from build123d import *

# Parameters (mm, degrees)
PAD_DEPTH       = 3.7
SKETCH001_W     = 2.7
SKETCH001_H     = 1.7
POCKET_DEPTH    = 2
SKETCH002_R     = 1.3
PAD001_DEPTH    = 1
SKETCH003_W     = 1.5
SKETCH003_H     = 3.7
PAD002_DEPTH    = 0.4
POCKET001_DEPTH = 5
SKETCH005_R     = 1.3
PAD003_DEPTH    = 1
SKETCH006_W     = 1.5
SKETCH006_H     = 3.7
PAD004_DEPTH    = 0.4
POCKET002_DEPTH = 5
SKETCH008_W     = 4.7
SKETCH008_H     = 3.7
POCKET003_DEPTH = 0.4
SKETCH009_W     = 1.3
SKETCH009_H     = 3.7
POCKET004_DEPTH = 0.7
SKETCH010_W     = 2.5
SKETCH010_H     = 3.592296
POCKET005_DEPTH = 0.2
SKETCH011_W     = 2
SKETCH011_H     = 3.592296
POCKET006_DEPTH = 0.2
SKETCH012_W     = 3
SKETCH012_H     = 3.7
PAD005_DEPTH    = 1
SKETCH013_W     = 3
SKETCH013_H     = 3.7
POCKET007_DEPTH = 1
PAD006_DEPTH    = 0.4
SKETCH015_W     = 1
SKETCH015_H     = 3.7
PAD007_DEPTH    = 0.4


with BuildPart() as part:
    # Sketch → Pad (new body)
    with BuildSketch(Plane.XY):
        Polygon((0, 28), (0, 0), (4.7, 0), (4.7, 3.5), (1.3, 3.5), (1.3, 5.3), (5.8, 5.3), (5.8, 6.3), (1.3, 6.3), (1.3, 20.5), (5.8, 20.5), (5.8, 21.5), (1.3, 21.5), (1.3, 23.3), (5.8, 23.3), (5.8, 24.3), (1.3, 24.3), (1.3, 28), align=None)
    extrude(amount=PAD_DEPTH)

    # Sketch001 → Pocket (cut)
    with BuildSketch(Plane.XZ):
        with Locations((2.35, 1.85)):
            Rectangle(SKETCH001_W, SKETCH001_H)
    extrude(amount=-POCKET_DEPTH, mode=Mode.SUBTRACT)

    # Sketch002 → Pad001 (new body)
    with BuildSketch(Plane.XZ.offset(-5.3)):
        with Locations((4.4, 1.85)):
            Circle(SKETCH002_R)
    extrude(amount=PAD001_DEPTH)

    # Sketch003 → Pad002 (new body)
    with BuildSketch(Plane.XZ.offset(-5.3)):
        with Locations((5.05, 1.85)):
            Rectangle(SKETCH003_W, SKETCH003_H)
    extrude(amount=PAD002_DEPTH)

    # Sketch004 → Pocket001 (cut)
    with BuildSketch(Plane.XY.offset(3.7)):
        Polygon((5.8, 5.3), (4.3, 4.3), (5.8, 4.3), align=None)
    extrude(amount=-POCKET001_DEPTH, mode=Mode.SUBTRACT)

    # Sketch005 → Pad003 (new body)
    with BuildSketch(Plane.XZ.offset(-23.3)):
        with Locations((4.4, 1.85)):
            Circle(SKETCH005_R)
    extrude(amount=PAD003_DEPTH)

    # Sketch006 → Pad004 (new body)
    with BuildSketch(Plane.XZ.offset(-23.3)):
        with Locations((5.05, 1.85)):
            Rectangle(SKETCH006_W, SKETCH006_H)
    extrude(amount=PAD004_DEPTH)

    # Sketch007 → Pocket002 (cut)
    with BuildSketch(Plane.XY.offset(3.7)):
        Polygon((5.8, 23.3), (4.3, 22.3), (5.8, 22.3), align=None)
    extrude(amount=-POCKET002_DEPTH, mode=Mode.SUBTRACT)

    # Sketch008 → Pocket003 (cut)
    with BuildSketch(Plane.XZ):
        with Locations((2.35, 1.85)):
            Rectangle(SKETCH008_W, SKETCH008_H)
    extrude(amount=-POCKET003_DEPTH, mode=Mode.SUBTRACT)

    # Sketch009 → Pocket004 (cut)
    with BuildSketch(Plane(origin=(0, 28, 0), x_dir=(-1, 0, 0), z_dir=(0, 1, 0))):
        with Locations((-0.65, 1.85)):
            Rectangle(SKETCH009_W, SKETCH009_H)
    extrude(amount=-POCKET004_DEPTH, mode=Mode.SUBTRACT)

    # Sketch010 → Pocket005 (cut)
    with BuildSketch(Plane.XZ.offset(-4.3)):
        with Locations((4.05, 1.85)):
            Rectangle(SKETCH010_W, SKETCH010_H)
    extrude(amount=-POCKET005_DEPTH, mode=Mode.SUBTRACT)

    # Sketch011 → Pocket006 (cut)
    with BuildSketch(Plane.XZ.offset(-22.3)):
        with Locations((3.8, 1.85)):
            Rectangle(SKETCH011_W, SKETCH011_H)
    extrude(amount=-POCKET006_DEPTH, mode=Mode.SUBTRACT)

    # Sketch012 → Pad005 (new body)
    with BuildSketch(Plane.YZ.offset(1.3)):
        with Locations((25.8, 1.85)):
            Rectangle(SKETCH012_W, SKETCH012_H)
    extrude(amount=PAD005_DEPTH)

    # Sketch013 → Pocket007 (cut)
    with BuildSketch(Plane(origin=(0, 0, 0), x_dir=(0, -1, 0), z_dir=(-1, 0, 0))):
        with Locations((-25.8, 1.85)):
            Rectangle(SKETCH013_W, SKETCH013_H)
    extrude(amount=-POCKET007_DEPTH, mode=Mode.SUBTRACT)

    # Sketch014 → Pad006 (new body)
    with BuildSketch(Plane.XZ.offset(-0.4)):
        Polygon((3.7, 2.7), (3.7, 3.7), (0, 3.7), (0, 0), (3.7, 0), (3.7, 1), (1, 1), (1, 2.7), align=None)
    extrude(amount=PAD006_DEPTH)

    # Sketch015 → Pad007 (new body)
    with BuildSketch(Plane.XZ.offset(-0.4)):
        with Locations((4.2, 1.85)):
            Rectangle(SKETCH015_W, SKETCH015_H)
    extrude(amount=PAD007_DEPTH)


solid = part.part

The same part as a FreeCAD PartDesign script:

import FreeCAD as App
import Part
import Sketcher

V = App.Vector
Q = App.Units.Quantity


def add_polygon(sketch, points):
    """Adds a closed chain of lines whose ends are joined by coincident constraints."""
    first, n = sketch.GeometryCount, len(points)
    for a, b in zip(points, points[1:] + points[:1]):
        sketch.addGeometry(Part.LineSegment(App.Vector(*a, 0), App.Vector(*b, 0)), False)
    for i in range(n):
        sketch.addConstraint(Sketcher.Constraint("Coincident", first + i, 2, first + (i + 1) % n, 1))

doc = App.newDocument("Part")
params = doc.addObject("Spreadsheet::Sheet", "Params")
for row, (alias, value) in enumerate([
    ("sketch1_height", "28 mm"),
    ("sketch1_height2", "1 mm"),
    ("sketch1_width", "4.7 mm"),
    ("sketch1_width2", "3.4 mm"),
    ("sketch1_width3", "4.5 mm"),
    ("pad1_length", "3.7 mm"),
    ("sketch2_width", "2.7 mm"),
    ("sketch2_height", "1.7 mm"),
    ("pocket1_length", "2 mm"),
    ("sketch3_diameter", "2.6 mm"),
    ("pad2_length", "1 mm"),
    ("sketch4_width", "1.5 mm"),
    ("sketch4_height", "3.7 mm"),
    ("pad3_length", "0.4 mm"),
    ("sketch5_height", "1 mm"),
    ("sketch5_width", "1.5 mm"),
    ("pocket2_length", "5 mm"),
    ("sketch6_diameter", "2.6 mm"),
    ("pad4_length", "1 mm"),
    ("sketch7_width", "1.5 mm"),
    ("sketch7_height", "3.7 mm"),
    ("pad5_length", "0.4 mm"),
    ("sketch8_height", "1 mm"),
    ("sketch8_width", "1.5 mm"),
    ("pocket3_length", "5 mm"),
    ("sketch9_width", "4.7 mm"),
    ("sketch9_height", "3.7 mm"),
    ("pocket4_length", "0.4 mm"),
    ("sketch10_width", "1.3 mm"),
    ("sketch10_height", "3.7 mm"),
    ("pocket5_length", "0.7 mm"),
    ("sketch11_width", "2.5 mm"),
    ("pocket6_length", "0.2 mm"),
    ("sketch12_width", "2 mm"),
    ("pocket7_length", "0.2 mm"),
    ("sketch13_width", "3 mm"),
    ("sketch13_height", "3.7 mm"),
    ("pad6_length", "1 mm"),
    ("sketch14_width", "3 mm"),
    ("sketch14_height", "3.7 mm"),
    ("pocket8_length", "1 mm"),
    ("sketch15_height", "1 mm"),
    ("sketch15_width", "3.7 mm"),
    ("sketch15_width2", "2.7 mm"),
    ("pad7_length", "0.4 mm"),
    ("sketch16_width", "1 mm"),
    ("sketch16_height", "3.7 mm"),
    ("pad8_length", "0.4 mm"),
], start=1):
    params.set(f"A{row}", alias)
    params.set(f"B{row}", "=" + value)
    params.setAlias(f"B{row}", alias)

body = doc.addObject("PartDesign::Body", "Body")

# Sketch on XY plane
sketch1 = body.newObject("Sketcher::SketchObject", "Sketch")
sketch1.AttachmentSupport = (doc.getObject("XY_Plane"), [""])
sketch1.MapMode = "FlatFace"
add_polygon(sketch1, [(0, 28), (0, 0), (4.7, 0), (4.7, 3.5), (1.3, 3.5), (1.3, 5.3), (5.8, 5.3), (5.8, 6.3), (1.3, 6.3), (1.3, 20.5), (5.8, 20.5), (5.8, 21.5), (1.3, 21.5), (1.3, 23.3), (5.8, 23.3), (5.8, 24.3), (1.3, 24.3), (1.3, 28)])  # lines 0-17
sketch1.addConstraint([
    Sketcher.Constraint("Vertical", 0),
    Sketcher.Constraint("Horizontal", 1),
    Sketcher.Constraint("Vertical", 2),
    Sketcher.Constraint("Horizontal", 3),
    Sketcher.Constraint("Vertical", 4),
    Sketcher.Constraint("Horizontal", 5),
    Sketcher.Constraint("Vertical", 6),
    Sketcher.Constraint("Horizontal", 7),
    Sketcher.Constraint("Vertical", 8),
    Sketcher.Constraint("Horizontal", 9),
    Sketcher.Constraint("Vertical", 10),
    Sketcher.Constraint("Horizontal", 11),
    Sketcher.Constraint("Vertical", 12),
    Sketcher.Constraint("Horizontal", 13),
    Sketcher.Constraint("Vertical", 14),
    Sketcher.Constraint("Horizontal", 15),
    Sketcher.Constraint("Vertical", 16),
    Sketcher.Constraint("Horizontal", 17),
    Sketcher.Constraint("Coincident", 0, 2, -1, 1),
    Sketcher.Constraint("Vertical", 4, 2, 7, 2),
    Sketcher.Constraint("Vertical", 6, 2, 9, 2),
    Sketcher.Constraint("Vertical", 8, 2, 11, 2),
    Sketcher.Constraint("Vertical", 10, 2, 13, 2),
    Sketcher.Constraint("Vertical", 12, 2, 15, 2),
    Sketcher.Constraint("Equal", 6, 10),
    Sketcher.Constraint("Equal", 4, 12),
    Sketcher.Constraint("Equal", 10, 14),
    Sketcher.Constraint("DistanceY", 0, 2, 0, 1, Q("28 mm")),
    Sketcher.Constraint("DistanceY", 6, 1, 6, 2, Q("1 mm")),
    Sketcher.Constraint("DistanceX", 1, 1, 1, 2, Q("4.7 mm")),
    Sketcher.Constraint("DistanceX", 3, 2, 3, 1, Q("3.4 mm")),
    Sketcher.Constraint("DistanceX", 5, 1, 5, 2, Q("4.5 mm")),
    Sketcher.Constraint("DistanceY", 2, 1, 2, 2, Q("3.5 mm")),
    Sketcher.Constraint("DistanceY", 4, 1, 4, 2, Q("1.8 mm")),
    Sketcher.Constraint("DistanceY", 8, 1, 8, 2, Q("14.2 mm")),
])
sketch1.setExpression("Constraints[45]", "Params.sketch1_height")
sketch1.setExpression("Constraints[46]", "Params.sketch1_height2")
sketch1.setExpression("Constraints[47]", "Params.sketch1_width")
sketch1.setExpression("Constraints[48]", "Params.sketch1_width2")
sketch1.setExpression("Constraints[49]", "Params.sketch1_width3")
pad1 = body.newObject("PartDesign::Pad", "Pad")
pad1.Profile = sketch1
pad1.setExpression("Length", "Params.pad1_length")

# Sketch on XZ plane
sketch2 = body.newObject("Sketcher::SketchObject", "Sketch001")
sketch2.AttachmentSupport = (doc.getObject("XZ_Plane"), [""])
sketch2.MapMode = "FlatFace"
add_polygon(sketch2, [(1, 2.7), (1, 1), (3.7, 1), (3.7, 2.7)])  # lines 0-3
sketch2.addConstraint([
    Sketcher.Constraint("Vertical", 0),
    Sketcher.Constraint("Horizontal", 1),
    Sketcher.Constraint("Vertical", 2),
    Sketcher.Constraint("Horizontal", 3),
    Sketcher.Constraint("DistanceX", 1, 1, 1, 2, Q("2.7 mm")),
    Sketcher.Constraint("DistanceY", 0, 2, 0, 1, Q("1.7 mm")),
    Sketcher.Constraint("DistanceX", -1, 1, 0, 2, Q("1 mm")),
    Sketcher.Constraint("DistanceY", -1, 1, 0, 2, Q("1 mm")),
])
sketch2.setExpression("Constraints[8]", "Params.sketch2_width")
sketch2.setExpression("Constraints[9]", "Params.sketch2_height")
pocket1 = body.newObject("PartDesign::Pocket", "Pocket")
pocket1.Profile = sketch2
pocket1.setExpression("Length", "Params.pocket1_length")

# Sketch on XZ plane
sketch3 = body.newObject("Sketcher::SketchObject", "Sketch002")
sketch3.AttachmentSupport = (doc.getObject("XZ_Plane"), [""])
sketch3.MapMode = "FlatFace"
sketch3.AttachmentOffset = App.Placement(V(0, 0, -5.3), App.Rotation())
sketch3.addGeometry(Part.Circle(V(4.4, 1.9, 0), V(0, 0, 1), 1.3), False)
sketch3.addConstraint([
    Sketcher.Constraint("Diameter", 0, Q("2.6 mm")),
    Sketcher.Constraint("DistanceX", -1, 1, 0, 3, Q("4.4 mm")),
    Sketcher.Constraint("DistanceY", -1, 1, 0, 3, Q("1.85 mm")),
])
sketch3.setExpression("Constraints[0]", "Params.sketch3_diameter")
pad2 = body.newObject("PartDesign::Pad", "Pad001")
pad2.Profile = sketch3
pad2.setExpression("Length", "Params.pad2_length")

# Sketch on XZ plane
sketch4 = body.newObject("Sketcher::SketchObject", "Sketch003")
sketch4.AttachmentSupport = (doc.getObject("XZ_Plane"), [""])
sketch4.MapMode = "FlatFace"
sketch4.AttachmentOffset = App.Placement(V(0, 0, -5.3), App.Rotation())
add_polygon(sketch4, [(4.3, 3.7), (4.3, 0), (5.8, 0), (5.8, 3.7)])  # lines 0-3
sketch4.addConstraint([
    Sketcher.Constraint("Vertical", 0),
    Sketcher.Constraint("Horizontal", 1),
    Sketcher.Constraint("Vertical", 2),
    Sketcher.Constraint("Horizontal", 3),
    Sketcher.Constraint("PointOnObject", 0, 2, -1),
    Sketcher.Constraint("DistanceX", 1, 1, 1, 2, Q("1.5 mm")),
    Sketcher.Constraint("DistanceY", 0, 2, 0, 1, Q("3.7 mm")),
    Sketcher.Constraint("DistanceX", -1, 1, 0, 2, Q("4.3 mm")),
])
sketch4.setExpression("Constraints[9]", "Params.sketch4_width")
sketch4.setExpression("Constraints[10]", "Params.sketch4_height")
pad3 = body.newObject("PartDesign::Pad", "Pad002")
pad3.Profile = sketch4
pad3.setExpression("Length", "Params.pad3_length")

# Sketch on XY plane
sketch5 = body.newObject("Sketcher::SketchObject", "Sketch004")
sketch5.AttachmentSupport = (doc.getObject("XY_Plane"), [""])
sketch5.MapMode = "FlatFace"
sketch5.AttachmentOffset = App.Placement(V(0, 0, 3.7), App.Rotation())
add_polygon(sketch5, [(5.8, 5.3), (4.3, 4.3), (5.8, 4.3)])  # lines 0-2
sketch5.addConstraint([
    Sketcher.Constraint("Horizontal", 1),
    Sketcher.Constraint("Vertical", 2),
    Sketcher.Constraint("DistanceY", 2, 1, 2, 2, Q("1 mm")),
    Sketcher.Constraint("DistanceX", 1, 1, 1, 2, Q("1.5 mm")),
    Sketcher.Constraint("DistanceX", -1, 1, 0, 2, Q("4.3 mm")),
    Sketcher.Constraint("DistanceY", -1, 1, 0, 2, Q("4.3 mm")),
])
sketch5.setExpression("Constraints[5]", "Params.sketch5_height")
sketch5.setExpression("Constraints[6]", "Params.sketch5_width")
pocket2 = body.newObject("PartDesign::Pocket", "Pocket001")
pocket2.Profile = sketch5
pocket2.setExpression("Length", "Params.pocket2_length")

# Sketch on XZ plane
sketch6 = body.newObject("Sketcher::SketchObject", "Sketch005")
sketch6.AttachmentSupport = (doc.getObject("XZ_Plane"), [""])
sketch6.MapMode = "FlatFace"
sketch6.AttachmentOffset = App.Placement(V(0, 0, -23.3), App.Rotation())
sketch6.addGeometry(Part.Circle(V(4.4, 1.9, 0), V(0, 0, 1), 1.3), False)
sketch6.addConstraint([
    Sketcher.Constraint("Diameter", 0, Q("2.6 mm")),
    Sketcher.Constraint("DistanceX", -1, 1, 0, 3, Q("4.4 mm")),
    Sketcher.Constraint("DistanceY", -1, 1, 0, 3, Q("1.85 mm")),
])
sketch6.setExpression("Constraints[0]", "Params.sketch6_diameter")
pad4 = body.newObject("PartDesign::Pad", "Pad003")
pad4.Profile = sketch6
pad4.setExpression("Length", "Params.pad4_length")

# Sketch on XZ plane
sketch7 = body.newObject("Sketcher::SketchObject", "Sketch006")
sketch7.AttachmentSupport = (doc.getObject("XZ_Plane"), [""])
sketch7.MapMode = "FlatFace"
sketch7.AttachmentOffset = App.Placement(V(0, 0, -23.3), App.Rotation())
add_polygon(sketch7, [(4.3, 3.7), (4.3, 0), (5.8, 0), (5.8, 3.7)])  # lines 0-3
sketch7.addConstraint([
    Sketcher.Constraint("Vertical", 0),
    Sketcher.Constraint("Horizontal", 1),
    Sketcher.Constraint("Vertical", 2),
    Sketcher.Constraint("Horizontal", 3),
    Sketcher.Constraint("PointOnObject", 0, 2, -1),
    Sketcher.Constraint("DistanceX", 1, 1, 1, 2, Q("1.5 mm")),
    Sketcher.Constraint("DistanceY", 0, 2, 0, 1, Q("3.7 mm")),
    Sketcher.Constraint("DistanceX", -1, 1, 0, 2, Q("4.3 mm")),
])
sketch7.setExpression("Constraints[9]", "Params.sketch7_width")
sketch7.setExpression("Constraints[10]", "Params.sketch7_height")
pad5 = body.newObject("PartDesign::Pad", "Pad004")
pad5.Profile = sketch7
pad5.setExpression("Length", "Params.pad5_length")

# Sketch on XY plane
sketch8 = body.newObject("Sketcher::SketchObject", "Sketch007")
sketch8.AttachmentSupport = (doc.getObject("XY_Plane"), [""])
sketch8.MapMode = "FlatFace"
sketch8.AttachmentOffset = App.Placement(V(0, 0, 3.7), App.Rotation())
add_polygon(sketch8, [(5.8, 23.3), (4.3, 22.3), (5.8, 22.3)])  # lines 0-2
sketch8.addConstraint([
    Sketcher.Constraint("Horizontal", 1),
    Sketcher.Constraint("Vertical", 2),
    Sketcher.Constraint("DistanceY", 2, 1, 2, 2, Q("1 mm")),
    Sketcher.Constraint("DistanceX", 1, 1, 1, 2, Q("1.5 mm")),
    Sketcher.Constraint("DistanceX", -1, 1, 0, 2, Q("4.3 mm")),
    Sketcher.Constraint("DistanceY", -1, 1, 0, 2, Q("22.3 mm")),
])
sketch8.setExpression("Constraints[5]", "Params.sketch8_height")
sketch8.setExpression("Constraints[6]", "Params.sketch8_width")
pocket3 = body.newObject("PartDesign::Pocket", "Pocket002")
pocket3.Profile = sketch8
pocket3.setExpression("Length", "Params.pocket3_length")

# Sketch on XZ plane
sketch9 = body.newObject("Sketcher::SketchObject", "Sketch008")
sketch9.AttachmentSupport = (doc.getObject("XZ_Plane"), [""])
sketch9.MapMode = "FlatFace"
add_polygon(sketch9, [(0, 3.7), (0, 0), (4.7, 0), (4.7, 3.7)])  # lines 0-3
sketch9.addConstraint([
    Sketcher.Constraint("Vertical", 0),
    Sketcher.Constraint("Horizontal", 1),
    Sketcher.Constraint("Vertical", 2),
    Sketcher.Constraint("Horizontal", 3),
    Sketcher.Constraint("Coincident", 0, 2, -1, 1),
    Sketcher.Constraint("DistanceX", 1, 1, 1, 2, Q("4.7 mm")),
    Sketcher.Constraint("DistanceY", 0, 2, 0, 1, Q("3.7 mm")),
])
sketch9.setExpression("Constraints[9]", "Params.sketch9_width")
sketch9.setExpression("Constraints[10]", "Params.sketch9_height")
pocket4 = body.newObject("PartDesign::Pocket", "Pocket003")
pocket4.Profile = sketch9
pocket4.setExpression("Length", "Params.pocket4_length")

# Sketch on XZ plane
sketch10 = body.newObject("Sketcher::SketchObject", "Sketch009")
sketch10.AttachmentSupport = (doc.getObject("XZ_Plane"), [""])
sketch10.MapMode = "FlatFace"
sketch10.AttachmentOffset = App.Placement(V(0, 0, -28), App.Rotation())
add_polygon(sketch10, [(1.3, 3.7), (1.3, 0), (0, 0), (0, 3.7)])  # lines 0-3
sketch10.addConstraint([
    Sketcher.Constraint("Vertical", 0),
    Sketcher.Constraint("Horizontal", 1),
    Sketcher.Constraint("Vertical", 2),
    Sketcher.Constraint("Horizontal", 3),
    Sketcher.Constraint("Coincident", 1, 2, -1, 1),
    Sketcher.Constraint("DistanceX", 1, 2, 1, 1, Q("1.3 mm")),
    Sketcher.Constraint("DistanceY", 0, 2, 0, 1, Q("3.7 mm")),
])
sketch10.setExpression("Constraints[9]", "Params.sketch10_width")
sketch10.setExpression("Constraints[10]", "Params.sketch10_height")
pocket5 = body.newObject("PartDesign::Pocket", "Pocket004")
pocket5.Profile = sketch10
pocket5.setExpression("Length", "Params.pocket5_length")
pocket5.Reversed = True

# Sketch on XZ plane
sketch11 = body.newObject("Sketcher::SketchObject", "Sketch010")
sketch11.AttachmentSupport = (doc.getObject("XZ_Plane"), [""])
sketch11.MapMode = "FlatFace"
sketch11.AttachmentOffset = App.Placement(V(0, 0, -4.3), App.Rotation())
add_polygon(sketch11, [(2.8, 3.6), (2.8, 0.1), (5.3, 0.1), (5.3, 3.6)])  # lines 0-3
sketch11.addConstraint([
    Sketcher.Constraint("Vertical", 0),
    Sketcher.Constraint("Horizontal", 1),
    Sketcher.Constraint("Vertical", 2),
    Sketcher.Constraint("Horizontal", 3),
    Sketcher.Constraint("DistanceX", 1, 1, 1, 2, Q("2.5 mm")),
    Sketcher.Constraint("DistanceX", -1, 1, 0, 2, Q("2.8 mm")),
    Sketcher.Constraint("DistanceY", 0, 2, 0, 1, Q("3.592296 mm")),
    Sketcher.Constraint("DistanceY", -1, 1, 0, 2, Q("0.053852 mm")),
])
sketch11.setExpression("Constraints[8]", "Params.sketch11_width")
pocket6 = body.newObject("PartDesign::Pocket", "Pocket005")
pocket6.Profile = sketch11
pocket6.setExpression("Length", "Params.pocket6_length")

# Sketch on XZ plane
sketch12 = body.newObject("Sketcher::SketchObject", "Sketch011")
sketch12.AttachmentSupport = (doc.getObject("XZ_Plane"), [""])
sketch12.MapMode = "FlatFace"
sketch12.AttachmentOffset = App.Placement(V(0, 0, -22.3), App.Rotation())
add_polygon(sketch12, [(2.8, 3.6), (2.8, 0.1), (4.8, 0.1), (4.8, 3.6)])  # lines 0-3
sketch12.addConstraint([
    Sketcher.Constraint("Vertical", 0),
    Sketcher.Constraint("Horizontal", 1),
    Sketcher.Constraint("Vertical", 2),
    Sketcher.Constraint("Horizontal", 3),
    Sketcher.Constraint("DistanceX", 1, 1, 1, 2, Q("2 mm")),
    Sketcher.Constraint("DistanceX", -1, 1, 0, 2, Q("2.8 mm")),
    Sketcher.Constraint("DistanceY", 0, 2, 0, 1, Q("3.592296 mm")),
    Sketcher.Constraint("DistanceY", -1, 1, 0, 2, Q("0.053852 mm")),
])
sketch12.setExpression("Constraints[8]", "Params.sketch12_width")
pocket7 = body.newObject("PartDesign::Pocket", "Pocket006")
pocket7.Profile = sketch12
pocket7.setExpression("Length", "Params.pocket7_length")

# Sketch on YZ plane
sketch13 = body.newObject("Sketcher::SketchObject", "Sketch012")
sketch13.AttachmentSupport = (doc.getObject("YZ_Plane"), [""])
sketch13.MapMode = "FlatFace"
sketch13.AttachmentOffset = App.Placement(V(0, 0, 1.3), App.Rotation())
add_polygon(sketch13, [(24.3, 3.7), (24.3, 0), (27.3, 0), (27.3, 3.7)])  # lines 0-3
sketch13.addConstraint([
    Sketcher.Constraint("Vertical", 0),
    Sketcher.Constraint("Horizontal", 1),
    Sketcher.Constraint("Vertical", 2),
    Sketcher.Constraint("Horizontal", 3),
    Sketcher.Constraint("PointOnObject", 0, 2, -1),
    Sketcher.Constraint("DistanceX", 1, 1, 1, 2, Q("3 mm")),
    Sketcher.Constraint("DistanceY", 0, 2, 0, 1, Q("3.7 mm")),
    Sketcher.Constraint("DistanceX", -1, 1, 0, 2, Q("24.3 mm")),
])
sketch13.setExpression("Constraints[9]", "Params.sketch13_width")
sketch13.setExpression("Constraints[10]", "Params.sketch13_height")
pad6 = body.newObject("PartDesign::Pad", "Pad005")
pad6.Profile = sketch13
pad6.setExpression("Length", "Params.pad6_length")

# Sketch on YZ plane
sketch14 = body.newObject("Sketcher::SketchObject", "Sketch013")
sketch14.AttachmentSupport = (doc.getObject("YZ_Plane"), [""])
sketch14.MapMode = "FlatFace"
add_polygon(sketch14, [(27.3, 3.7), (27.3, 0), (24.3, 0), (24.3, 3.7)])  # lines 0-3
sketch14.addConstraint([
    Sketcher.Constraint("Vertical", 0),
    Sketcher.Constraint("Horizontal", 1),
    Sketcher.Constraint("Vertical", 2),
    Sketcher.Constraint("Horizontal", 3),
    Sketcher.Constraint("PointOnObject", 0, 2, -1),
    Sketcher.Constraint("DistanceX", 1, 2, 1, 1, Q("3 mm")),
    Sketcher.Constraint("DistanceY", 0, 2, 0, 1, Q("3.7 mm")),
    Sketcher.Constraint("DistanceX", -1, 1, 0, 2, Q("27.3 mm")),
])
sketch14.setExpression("Constraints[9]", "Params.sketch14_width")
sketch14.setExpression("Constraints[10]", "Params.sketch14_height")
pocket8 = body.newObject("PartDesign::Pocket", "Pocket007")
pocket8.Profile = sketch14
pocket8.setExpression("Length", "Params.pocket8_length")
pocket8.Reversed = True

# Sketch on XZ plane
sketch15 = body.newObject("Sketcher::SketchObject", "Sketch014")
sketch15.AttachmentSupport = (doc.getObject("XZ_Plane"), [""])
sketch15.MapMode = "FlatFace"
sketch15.AttachmentOffset = App.Placement(V(0, 0, -0.4), App.Rotation())
add_polygon(sketch15, [(3.7, 2.7), (3.7, 3.7), (0, 3.7), (0, 0), (3.7, 0), (3.7, 1), (1, 1), (1, 2.7)])  # lines 0-7
sketch15.addConstraint([
    Sketcher.Constraint("Vertical", 0),
    Sketcher.Constraint("Horizontal", 1),
    Sketcher.Constraint("Vertical", 2),
    Sketcher.Constraint("Horizontal", 3),
    Sketcher.Constraint("Vertical", 4),
    Sketcher.Constraint("Horizontal", 5),
    Sketcher.Constraint("Vertical", 6),
    Sketcher.Constraint("Horizontal", 7),
    Sketcher.Constraint("Coincident", 2, 2, -1, 1),
    Sketcher.Constraint("Vertical", 0, 2, 3, 2),
    Sketcher.Constraint("Equal", 3, 2),
    Sketcher.Constraint("Equal", 0, 4),
    Sketcher.Constraint("DistanceY", 0, 1, 0, 2, Q("1 mm")),
    Sketcher.Constraint("DistanceX", 1, 2, 1, 1, Q("3.7 mm")),
    Sketcher.Constraint("DistanceX", 5, 2, 5, 1, Q("2.7 mm")),
])
sketch15.setExpression("Constraints[20]", "Params.sketch15_height")
sketch15.setExpression("Constraints[21]", "Params.sketch15_width")
sketch15.setExpression("Constraints[22]", "Params.sketch15_width2")
pad7 = body.newObject("PartDesign::Pad", "Pad006")
pad7.Profile = sketch15
pad7.setExpression("Length", "Params.pad7_length")

# Sketch on XZ plane
sketch16 = body.newObject("Sketcher::SketchObject", "Sketch015")
sketch16.AttachmentSupport = (doc.getObject("XZ_Plane"), [""])
sketch16.MapMode = "FlatFace"
sketch16.AttachmentOffset = App.Placement(V(0, 0, -0.4), App.Rotation())
add_polygon(sketch16, [(3.7, 3.7), (3.7, 0), (4.7, 0), (4.7, 3.7)])  # lines 0-3
sketch16.addConstraint([
    Sketcher.Constraint("Vertical", 0),
    Sketcher.Constraint("Horizontal", 1),
    Sketcher.Constraint("Vertical", 2),
    Sketcher.Constraint("Horizontal", 3),
    Sketcher.Constraint("PointOnObject", 0, 2, -1),
    Sketcher.Constraint("DistanceX", 1, 1, 1, 2, Q("1 mm")),
    Sketcher.Constraint("DistanceY", 0, 2, 0, 1, Q("3.7 mm")),
    Sketcher.Constraint("DistanceX", -1, 1, 0, 2, Q("3.7 mm")),
])
sketch16.setExpression("Constraints[9]", "Params.sketch16_width")
sketch16.setExpression("Constraints[10]", "Params.sketch16_height")
pad8 = body.newObject("PartDesign::Pad", "Pad007")
pad8.Profile = sketch16
pad8.setExpression("Length", "Params.pad8_length")

doc.recompute()
